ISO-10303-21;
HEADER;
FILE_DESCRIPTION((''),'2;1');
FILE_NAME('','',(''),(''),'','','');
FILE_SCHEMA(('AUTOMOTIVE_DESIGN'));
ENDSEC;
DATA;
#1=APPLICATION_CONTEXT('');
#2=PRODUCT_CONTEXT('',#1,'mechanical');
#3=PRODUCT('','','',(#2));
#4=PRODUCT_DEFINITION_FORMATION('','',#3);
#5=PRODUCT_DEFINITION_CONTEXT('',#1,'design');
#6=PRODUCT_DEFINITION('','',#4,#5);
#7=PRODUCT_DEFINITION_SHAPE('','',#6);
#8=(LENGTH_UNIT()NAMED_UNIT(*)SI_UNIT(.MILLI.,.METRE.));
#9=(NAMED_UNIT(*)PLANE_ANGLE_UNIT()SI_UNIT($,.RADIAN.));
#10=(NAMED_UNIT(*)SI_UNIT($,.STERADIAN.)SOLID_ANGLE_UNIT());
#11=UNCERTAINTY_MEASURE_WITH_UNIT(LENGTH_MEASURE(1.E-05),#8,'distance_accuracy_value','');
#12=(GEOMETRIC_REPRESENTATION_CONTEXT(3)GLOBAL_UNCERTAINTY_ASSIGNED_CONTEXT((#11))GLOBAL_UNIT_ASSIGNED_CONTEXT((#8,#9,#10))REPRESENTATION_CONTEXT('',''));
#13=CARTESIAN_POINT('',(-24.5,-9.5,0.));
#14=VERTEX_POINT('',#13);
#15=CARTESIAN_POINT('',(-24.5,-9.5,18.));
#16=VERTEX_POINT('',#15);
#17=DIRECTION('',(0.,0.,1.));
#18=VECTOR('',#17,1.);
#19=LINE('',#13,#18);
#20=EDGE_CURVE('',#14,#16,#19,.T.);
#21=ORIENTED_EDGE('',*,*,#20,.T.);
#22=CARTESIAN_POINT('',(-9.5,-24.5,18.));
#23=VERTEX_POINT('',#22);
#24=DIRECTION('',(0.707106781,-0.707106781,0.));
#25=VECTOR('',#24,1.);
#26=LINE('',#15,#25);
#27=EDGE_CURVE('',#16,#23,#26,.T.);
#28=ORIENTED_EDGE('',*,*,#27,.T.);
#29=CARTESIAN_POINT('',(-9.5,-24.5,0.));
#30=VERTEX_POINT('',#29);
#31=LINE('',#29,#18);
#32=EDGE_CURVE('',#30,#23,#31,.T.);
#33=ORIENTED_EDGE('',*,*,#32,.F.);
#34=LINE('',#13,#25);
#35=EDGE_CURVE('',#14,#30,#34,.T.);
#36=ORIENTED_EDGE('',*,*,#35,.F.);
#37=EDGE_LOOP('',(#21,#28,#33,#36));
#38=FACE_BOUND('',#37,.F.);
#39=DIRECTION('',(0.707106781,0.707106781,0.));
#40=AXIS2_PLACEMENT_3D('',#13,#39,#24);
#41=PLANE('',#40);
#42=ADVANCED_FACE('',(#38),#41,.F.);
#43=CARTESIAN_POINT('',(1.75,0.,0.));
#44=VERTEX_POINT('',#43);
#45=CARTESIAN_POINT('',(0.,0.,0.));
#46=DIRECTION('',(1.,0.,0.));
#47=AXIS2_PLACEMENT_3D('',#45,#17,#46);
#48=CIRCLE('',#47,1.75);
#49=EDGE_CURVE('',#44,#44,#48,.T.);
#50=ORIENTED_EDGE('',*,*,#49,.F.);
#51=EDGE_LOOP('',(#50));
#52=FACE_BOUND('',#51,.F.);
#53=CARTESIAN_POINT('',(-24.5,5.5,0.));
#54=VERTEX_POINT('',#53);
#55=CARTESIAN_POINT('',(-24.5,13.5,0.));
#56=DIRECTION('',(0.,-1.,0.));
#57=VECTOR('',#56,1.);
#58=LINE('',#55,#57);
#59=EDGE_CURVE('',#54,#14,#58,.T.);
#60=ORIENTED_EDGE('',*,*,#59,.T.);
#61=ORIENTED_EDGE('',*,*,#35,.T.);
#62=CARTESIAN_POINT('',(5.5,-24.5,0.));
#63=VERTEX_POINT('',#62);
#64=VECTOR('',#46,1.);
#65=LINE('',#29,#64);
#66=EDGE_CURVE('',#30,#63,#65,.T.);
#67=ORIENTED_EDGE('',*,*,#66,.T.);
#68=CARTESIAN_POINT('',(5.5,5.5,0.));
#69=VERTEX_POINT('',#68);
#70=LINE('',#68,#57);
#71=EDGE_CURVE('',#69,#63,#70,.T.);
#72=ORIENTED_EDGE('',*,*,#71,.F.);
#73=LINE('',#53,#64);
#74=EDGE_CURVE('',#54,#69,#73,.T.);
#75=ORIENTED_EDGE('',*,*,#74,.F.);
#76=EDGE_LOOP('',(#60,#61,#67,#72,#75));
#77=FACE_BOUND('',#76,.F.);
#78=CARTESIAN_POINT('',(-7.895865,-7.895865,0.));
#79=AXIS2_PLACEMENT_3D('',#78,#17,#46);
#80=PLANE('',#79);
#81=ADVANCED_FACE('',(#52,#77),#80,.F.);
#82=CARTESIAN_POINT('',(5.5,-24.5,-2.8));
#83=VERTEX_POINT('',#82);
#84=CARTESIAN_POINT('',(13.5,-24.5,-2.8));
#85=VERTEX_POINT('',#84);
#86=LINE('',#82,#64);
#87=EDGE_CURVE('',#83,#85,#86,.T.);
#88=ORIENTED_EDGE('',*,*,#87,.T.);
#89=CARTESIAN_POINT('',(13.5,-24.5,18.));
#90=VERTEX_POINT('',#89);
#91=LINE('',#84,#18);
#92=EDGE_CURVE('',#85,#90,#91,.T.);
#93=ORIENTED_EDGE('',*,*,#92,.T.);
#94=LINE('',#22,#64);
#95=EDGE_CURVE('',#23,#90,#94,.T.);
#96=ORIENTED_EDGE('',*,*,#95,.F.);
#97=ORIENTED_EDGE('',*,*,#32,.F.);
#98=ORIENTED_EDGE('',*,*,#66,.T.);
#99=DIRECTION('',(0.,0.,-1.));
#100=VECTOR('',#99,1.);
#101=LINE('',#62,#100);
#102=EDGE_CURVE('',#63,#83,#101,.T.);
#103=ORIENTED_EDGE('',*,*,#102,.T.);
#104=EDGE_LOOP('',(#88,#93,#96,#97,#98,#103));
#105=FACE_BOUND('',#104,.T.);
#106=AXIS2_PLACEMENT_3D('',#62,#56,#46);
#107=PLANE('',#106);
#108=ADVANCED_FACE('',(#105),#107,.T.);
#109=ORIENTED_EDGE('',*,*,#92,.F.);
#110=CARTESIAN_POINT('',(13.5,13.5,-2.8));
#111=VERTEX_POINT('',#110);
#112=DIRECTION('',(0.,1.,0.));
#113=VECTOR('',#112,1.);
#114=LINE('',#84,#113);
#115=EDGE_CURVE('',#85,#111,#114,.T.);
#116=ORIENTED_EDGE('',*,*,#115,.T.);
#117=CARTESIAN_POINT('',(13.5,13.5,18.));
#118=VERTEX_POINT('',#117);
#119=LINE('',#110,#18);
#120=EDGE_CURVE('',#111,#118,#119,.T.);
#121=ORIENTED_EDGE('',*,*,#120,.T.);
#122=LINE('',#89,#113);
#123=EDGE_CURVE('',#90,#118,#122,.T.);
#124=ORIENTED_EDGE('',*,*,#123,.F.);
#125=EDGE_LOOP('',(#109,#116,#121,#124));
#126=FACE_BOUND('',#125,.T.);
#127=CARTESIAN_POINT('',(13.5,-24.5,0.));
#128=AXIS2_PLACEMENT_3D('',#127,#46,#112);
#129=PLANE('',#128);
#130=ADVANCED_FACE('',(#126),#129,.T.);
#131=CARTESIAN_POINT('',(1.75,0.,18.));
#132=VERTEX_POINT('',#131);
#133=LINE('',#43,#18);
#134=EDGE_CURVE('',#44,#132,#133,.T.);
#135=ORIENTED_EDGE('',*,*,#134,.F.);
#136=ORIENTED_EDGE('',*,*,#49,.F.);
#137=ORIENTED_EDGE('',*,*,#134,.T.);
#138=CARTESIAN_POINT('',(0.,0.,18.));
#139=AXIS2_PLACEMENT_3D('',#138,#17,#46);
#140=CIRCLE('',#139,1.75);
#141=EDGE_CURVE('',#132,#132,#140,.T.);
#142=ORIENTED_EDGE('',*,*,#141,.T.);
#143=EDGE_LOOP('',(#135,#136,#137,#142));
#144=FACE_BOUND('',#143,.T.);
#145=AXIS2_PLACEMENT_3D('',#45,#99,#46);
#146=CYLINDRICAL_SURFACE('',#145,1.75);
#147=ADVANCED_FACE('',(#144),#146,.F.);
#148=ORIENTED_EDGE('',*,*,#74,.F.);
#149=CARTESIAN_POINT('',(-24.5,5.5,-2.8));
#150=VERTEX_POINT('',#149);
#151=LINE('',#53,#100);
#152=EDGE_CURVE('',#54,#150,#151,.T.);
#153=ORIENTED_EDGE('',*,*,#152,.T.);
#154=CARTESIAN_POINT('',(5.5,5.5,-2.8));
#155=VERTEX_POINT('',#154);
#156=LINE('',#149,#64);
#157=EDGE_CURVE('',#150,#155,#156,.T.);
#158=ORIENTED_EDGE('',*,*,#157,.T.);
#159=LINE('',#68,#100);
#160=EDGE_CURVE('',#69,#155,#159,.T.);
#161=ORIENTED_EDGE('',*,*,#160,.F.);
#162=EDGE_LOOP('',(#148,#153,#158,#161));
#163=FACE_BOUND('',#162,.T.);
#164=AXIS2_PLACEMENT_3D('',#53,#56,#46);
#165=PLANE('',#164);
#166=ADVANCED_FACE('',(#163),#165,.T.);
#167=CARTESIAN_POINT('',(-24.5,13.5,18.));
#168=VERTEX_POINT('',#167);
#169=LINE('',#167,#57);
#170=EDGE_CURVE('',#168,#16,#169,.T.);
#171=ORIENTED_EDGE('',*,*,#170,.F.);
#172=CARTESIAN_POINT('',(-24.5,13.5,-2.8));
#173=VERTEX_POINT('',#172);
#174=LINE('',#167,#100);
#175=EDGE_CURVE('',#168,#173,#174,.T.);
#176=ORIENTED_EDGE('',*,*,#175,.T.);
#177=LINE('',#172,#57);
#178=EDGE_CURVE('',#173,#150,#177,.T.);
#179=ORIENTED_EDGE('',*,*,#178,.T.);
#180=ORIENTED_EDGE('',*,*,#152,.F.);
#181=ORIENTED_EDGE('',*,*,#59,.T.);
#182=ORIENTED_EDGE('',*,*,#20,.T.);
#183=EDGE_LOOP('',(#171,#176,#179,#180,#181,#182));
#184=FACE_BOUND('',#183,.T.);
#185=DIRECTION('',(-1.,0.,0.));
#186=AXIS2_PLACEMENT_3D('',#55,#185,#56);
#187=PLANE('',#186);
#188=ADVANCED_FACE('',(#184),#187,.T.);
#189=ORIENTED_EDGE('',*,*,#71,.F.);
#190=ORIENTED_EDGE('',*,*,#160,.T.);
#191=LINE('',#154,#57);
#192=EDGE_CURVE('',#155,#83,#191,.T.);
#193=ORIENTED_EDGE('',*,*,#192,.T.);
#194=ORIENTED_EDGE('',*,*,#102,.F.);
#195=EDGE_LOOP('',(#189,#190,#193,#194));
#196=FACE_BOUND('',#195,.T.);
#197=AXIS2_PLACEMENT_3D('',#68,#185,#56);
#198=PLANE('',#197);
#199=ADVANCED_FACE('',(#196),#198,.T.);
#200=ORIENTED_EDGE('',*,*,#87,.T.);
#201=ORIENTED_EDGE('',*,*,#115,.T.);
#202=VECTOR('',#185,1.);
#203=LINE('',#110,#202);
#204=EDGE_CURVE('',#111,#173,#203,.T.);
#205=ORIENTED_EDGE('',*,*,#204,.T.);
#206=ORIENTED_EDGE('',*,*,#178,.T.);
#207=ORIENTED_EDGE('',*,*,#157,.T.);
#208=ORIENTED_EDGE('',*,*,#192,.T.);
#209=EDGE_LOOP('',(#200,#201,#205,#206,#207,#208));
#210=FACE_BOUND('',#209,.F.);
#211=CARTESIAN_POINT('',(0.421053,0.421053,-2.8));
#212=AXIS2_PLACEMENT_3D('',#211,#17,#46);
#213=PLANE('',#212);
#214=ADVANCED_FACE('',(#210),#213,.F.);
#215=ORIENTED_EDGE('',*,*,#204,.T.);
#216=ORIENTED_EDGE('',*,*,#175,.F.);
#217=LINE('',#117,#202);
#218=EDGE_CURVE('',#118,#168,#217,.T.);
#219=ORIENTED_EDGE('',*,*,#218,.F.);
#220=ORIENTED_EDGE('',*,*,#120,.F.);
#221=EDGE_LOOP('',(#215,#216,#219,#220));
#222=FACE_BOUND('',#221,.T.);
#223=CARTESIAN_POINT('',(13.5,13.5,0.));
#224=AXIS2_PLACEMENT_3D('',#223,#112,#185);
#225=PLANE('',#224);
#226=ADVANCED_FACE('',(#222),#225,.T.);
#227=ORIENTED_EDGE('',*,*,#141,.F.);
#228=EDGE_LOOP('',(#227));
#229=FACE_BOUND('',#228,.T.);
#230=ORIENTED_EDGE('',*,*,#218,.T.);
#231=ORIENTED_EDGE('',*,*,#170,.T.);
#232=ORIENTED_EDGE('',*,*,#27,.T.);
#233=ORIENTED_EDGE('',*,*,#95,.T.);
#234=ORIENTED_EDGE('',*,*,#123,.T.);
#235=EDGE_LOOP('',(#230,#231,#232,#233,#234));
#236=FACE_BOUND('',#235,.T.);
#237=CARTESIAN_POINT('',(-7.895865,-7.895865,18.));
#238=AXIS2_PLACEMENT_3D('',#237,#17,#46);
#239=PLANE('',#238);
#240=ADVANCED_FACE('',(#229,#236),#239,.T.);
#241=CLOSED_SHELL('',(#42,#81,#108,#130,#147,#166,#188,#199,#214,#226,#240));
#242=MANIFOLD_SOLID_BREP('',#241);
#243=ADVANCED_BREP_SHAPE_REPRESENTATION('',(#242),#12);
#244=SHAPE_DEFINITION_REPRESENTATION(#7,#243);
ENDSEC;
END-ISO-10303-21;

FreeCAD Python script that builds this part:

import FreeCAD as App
import Part
import Sketcher

doc = App.newDocument("Part")
body = doc.addObject("PartDesign::Body", "Body")

sketch1 = body.newObject("Sketcher::SketchObject", "Sketch")
sketch1.AttachmentSupport = (doc.getObject("XY_Plane"), [""])
sketch1.MapMode = "FlatFace"
sketch1.addGeometry([
    Part.LineSegment(App.Vector(-9.5, -24.5, 0), App.Vector(13.5, -24.5, 0)),
    Part.LineSegment(App.Vector(13.5, -24.5, 0), App.Vector(13.5, 13.5, 0)),
    Part.LineSegment(App.Vector(13.5, 13.5, 0), App.Vector(-24.5, 13.5, 0)),
    Part.LineSegment(App.Vector(-24.5, 13.5, 0), App.Vector(-24.5, -9.5, 0)),
    Part.LineSegment(App.Vector(-24.5, -9.5, 0), App.Vector(-9.5, -24.5, 0)),
    Part.Circle(App.Vector(0, 0, 0), App.Vector(0, 0, 1), 1.75),
], False)
sketch1.addConstraint([
    Sketcher.Constraint("Coincident", 0, 2, 1, 1),
    Sketcher.Constraint("Coincident", 1, 2, 2, 1),
    Sketcher.Constraint("Coincident", 2, 2, 3, 1),
    Sketcher.Constraint("Coincident", 3, 2, 4, 1),
    Sketcher.Constraint("Coincident", 4, 2, 0, 1),
    Sketcher.Constraint("Horizontal", 0),
    Sketcher.Constraint("Vertical", 1),
    Sketcher.Constraint("Horizontal", 2),
    Sketcher.Constraint("Vertical", 3),
    Sketcher.Constraint("Coincident", 5, 3, -1, 1),
    Sketcher.Constraint("Equal", 2, 1),
    Sketcher.Constraint("Equal", 0, 3),
    Sketcher.Constraint("Diameter", 5, 3.5),
    Sketcher.Constraint("DistanceX", 0, 1, 0, 2, 23.0),
    Sketcher.Constraint("DistanceX", 2, 2, 2, 1, 38.0),
    Sketcher.Constraint("DistanceX", -1, 1, 0, 2, 13.5),
    Sketcher.Constraint("DistanceY", 0, 2, -1, 1, 24.5),
])
pad1 = body.newObject("PartDesign::Pad", "Pad")
pad1.Profile = sketch1
pad1.Length = 18

sketch2 = body.newObject("Sketcher::SketchObject", "Sketch001")
sketch2.AttachmentSupport = (doc.getObject("XY_Plane"), [""])
sketch2.MapMode = "FlatFace"
sketch2.addGeometry([
    Part.LineSegment(App.Vector(5.5, 5.5, 0), App.Vector(5.5, -24.5, 0)),
    Part.LineSegment(App.Vector(5.5, -24.5, 0), App.Vector(13.5, -24.5, 0)),
    Part.LineSegment(App.Vector(13.5, -24.5, 0), App.Vector(13.5, 13.5, 0)),
    Part.LineSegment(App.Vector(13.5, 13.5, 0), App.Vector(-24.5, 13.5, 0)),
    Part.LineSegment(App.Vector(-24.5, 13.5, 0), App.Vector(-24.5, 5.5, 0)),
    Part.LineSegment(App.Vector(-24.5, 5.5, 0), App.Vector(5.5, 5.5, 0)),
], False)
sketch2.addConstraint([
    Sketcher.Constraint("Coincident", 0, 2, 1, 1),
    Sketcher.Constraint("Coincident", 1, 2, 2, 1),
    Sketcher.Constraint("Coincident", 2, 2, 3, 1),
    Sketcher.Constraint("Coincident", 3, 2, 4, 1),
    Sketcher.Constraint("Coincident", 4, 2, 5, 1),
    Sketcher.Constraint("Coincident", 5, 2, 0, 1),
    Sketcher.Constraint("Vertical", 0),
    Sketcher.Constraint("Horizontal", 1),
    Sketcher.Constraint("Vertical", 2),
    Sketcher.Constraint("Horizontal", 3),
    Sketcher.Constraint("Vertical", 4),
    Sketcher.Constraint("Horizontal", 5),
    Sketcher.Constraint("Equal", 5, 0),
    Sketcher.Constraint("Equal", 3, 2),
    Sketcher.Constraint("DistanceX", 1, 1, 1, 2, 8.0),
    Sketcher.Constraint("DistanceX", 3, 2, 3, 1, 38.0),
    Sketcher.Constraint("DistanceX", -1, 1, 0, 2, 5.5),
    Sketcher.Constraint("DistanceY", 0, 2, -1, 1, 24.5),
])
pad2 = body.newObject("PartDesign::Pad", "Pad001")
pad2.Profile = sketch2
pad2.Length = 2.8
pad2.Reversed = True

doc.recompute()
